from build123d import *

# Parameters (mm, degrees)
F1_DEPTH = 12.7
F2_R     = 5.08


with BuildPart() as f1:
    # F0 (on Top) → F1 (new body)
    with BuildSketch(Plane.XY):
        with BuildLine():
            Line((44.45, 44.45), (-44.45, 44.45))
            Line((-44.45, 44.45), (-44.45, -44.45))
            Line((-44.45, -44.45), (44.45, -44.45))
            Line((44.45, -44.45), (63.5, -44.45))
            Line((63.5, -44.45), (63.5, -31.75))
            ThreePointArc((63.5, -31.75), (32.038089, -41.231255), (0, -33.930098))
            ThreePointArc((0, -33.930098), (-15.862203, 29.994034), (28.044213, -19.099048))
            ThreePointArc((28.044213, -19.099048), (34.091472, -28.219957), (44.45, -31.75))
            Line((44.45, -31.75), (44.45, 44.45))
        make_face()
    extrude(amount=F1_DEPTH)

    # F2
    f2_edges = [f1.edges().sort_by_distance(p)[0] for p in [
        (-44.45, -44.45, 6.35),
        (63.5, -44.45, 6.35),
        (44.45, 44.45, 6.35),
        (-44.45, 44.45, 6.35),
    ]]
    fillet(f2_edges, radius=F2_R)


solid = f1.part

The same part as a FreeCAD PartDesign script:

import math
import FreeCAD as App
import Part
import Sketcher
Q = App.Units.Quantity


def edges_at(feature, points):
    """Names of the edges that pass closest to the given points."""
    edges = feature.Shape.Edges
    near = lambda p: min(range(len(edges)), key=lambda i: edges[i].distToShape(Part.Vertex(*p))[0])
    return sorted({f"Edge{near(p) + 1}" for p in points})

doc = App.newDocument("Part")
body = doc.addObject("PartDesign::Body", "Body")

# Sketch on XY plane
sketch1 = doc.addObject("Sketcher::SketchObject", "Sketch")
body.addObject(sketch1)
sketch1.AttachmentSupport = (doc.XY_Plane, [""])
sketch1.MapMode = "FlatFace"
sketch1.addGeometry(Part.LineSegment(App.Vector(44, 44, 0), App.Vector(-44, 44, 0)), False)
sketch1.addGeometry(Part.LineSegment(App.Vector(-44, 44, 0), App.Vector(-44, -44, 0)), False)
sketch1.addGeometry(Part.LineSegment(App.Vector(-44, -44, 0), App.Vector(64, -44, 0)), False)
sketch1.addGeometry(Part.LineSegment(App.Vector(64, -44, 0), App.Vector(64, -32, 0)), False)
sketch1.addGeometry(Part.ArcOfCircle(Part.Circle(App.Vector(30, 23, 0), App.Vector(0, 0, 1), 64), math.radians(-118), math.radians(-58)), False)
sketch1.addGeometry(Part.ArcOfCircle(Part.Circle(App.Vector(0, 0, 0), App.Vector(0, 0, 1), 34), math.radians(-34), math.radians(270)), False)
sketch1.addGeometry(Part.ArcOfCircle(Part.Circle(App.Vector(44, -15, 0), App.Vector(0, 0, 1), 17), math.radians(-165), math.radians(-90)), False)
sketch1.addGeometry(Part.LineSegment(App.Vector(44, -32, 0), App.Vector(44, 44, 0)), False)
sketch1.addConstraint(Sketcher.Constraint("Coincident", 0, 2, 1, 1))
sketch1.addConstraint(Sketcher.Constraint("Coincident", 1, 2, 2, 1))
sketch1.addConstraint(Sketcher.Constraint("Coincident", 2, 2, 3, 1))
sketch1.addConstraint(Sketcher.Constraint("Coincident", 3, 2, 4, 2))
sketch1.addConstraint(Sketcher.Constraint("Coincident", 4, 1, 5, 2))
sketch1.addConstraint(Sketcher.Constraint("Coincident", 5, 1, 6, 1))
sketch1.addConstraint(Sketcher.Constraint("Coincident", 6, 2, 7, 1))
sketch1.addConstraint(Sketcher.Constraint("Coincident", 7, 2, 0, 1))
sketch1.addConstraint(Sketcher.Constraint("Horizontal", 0))
sketch1.addConstraint(Sketcher.Constraint("Vertical", 1))
sketch1.addConstraint(Sketcher.Constraint("Horizontal", 2))
sketch1.addConstraint(Sketcher.Constraint("Vertical", 3))
sketch1.addConstraint(Sketcher.Constraint("Vertical", 7))
sketch1.addConstraint(Sketcher.Constraint("Coincident", 5, 3, -1, 1))
sketch1.addConstraint(Sketcher.Constraint("Symmetric", 1, 2, 7, 2, -1, 1))
sketch1.addConstraint(Sketcher.Constraint("PointOnObject", 4, 1, -2))
sketch1.addConstraint(Sketcher.Constraint("Horizontal", 3, 2, 6, 2))
sketch1.addConstraint(Sketcher.Constraint("Equal", 0, 1))
sketch1.addConstraint(Sketcher.Constraint("DistanceY", 7, 1, 7, 2, Q("3 in")))
sketch1.addConstraint(Sketcher.Constraint("DistanceX", 0, 2, 0, 1, Q("3.5 in")))
sketch1.addConstraint(Sketcher.Constraint("DistanceX", 2, 1, 2, 2, Q("4.25 in")))
sketch1.addConstraint(Sketcher.Constraint("DistanceX", 0, 2, 6, 3, Q("3.5 in")))
sketch1.addConstraint(Sketcher.Constraint("Radius", 4, 64.300069))
sketch1.addConstraint(Sketcher.Constraint("Radius", 6, 16.963009))
sketch1.addConstraint(Sketcher.Constraint("Radius", 5, 33.930098))
pad1 = doc.addObject("PartDesign::Pad", "Pad")
body.addObject(pad1)
pad1.Profile = sketch1
pad1.Length = Q("0.5 in")
doc.recompute()

fillet = doc.addObject("PartDesign::Fillet", "Fillet")
body.addObject(fillet)
fillet.Base = (pad1, edges_at(pad1, [
    (-44.45, -44.45, 6.35),
    (63.5, -44.45, 6.35),
    (44.45, 44.45, 6.35),
    (-44.45, 44.45, 6.35),
]))
fillet.Radius = Q("0.2 in")

doc.recompute()
